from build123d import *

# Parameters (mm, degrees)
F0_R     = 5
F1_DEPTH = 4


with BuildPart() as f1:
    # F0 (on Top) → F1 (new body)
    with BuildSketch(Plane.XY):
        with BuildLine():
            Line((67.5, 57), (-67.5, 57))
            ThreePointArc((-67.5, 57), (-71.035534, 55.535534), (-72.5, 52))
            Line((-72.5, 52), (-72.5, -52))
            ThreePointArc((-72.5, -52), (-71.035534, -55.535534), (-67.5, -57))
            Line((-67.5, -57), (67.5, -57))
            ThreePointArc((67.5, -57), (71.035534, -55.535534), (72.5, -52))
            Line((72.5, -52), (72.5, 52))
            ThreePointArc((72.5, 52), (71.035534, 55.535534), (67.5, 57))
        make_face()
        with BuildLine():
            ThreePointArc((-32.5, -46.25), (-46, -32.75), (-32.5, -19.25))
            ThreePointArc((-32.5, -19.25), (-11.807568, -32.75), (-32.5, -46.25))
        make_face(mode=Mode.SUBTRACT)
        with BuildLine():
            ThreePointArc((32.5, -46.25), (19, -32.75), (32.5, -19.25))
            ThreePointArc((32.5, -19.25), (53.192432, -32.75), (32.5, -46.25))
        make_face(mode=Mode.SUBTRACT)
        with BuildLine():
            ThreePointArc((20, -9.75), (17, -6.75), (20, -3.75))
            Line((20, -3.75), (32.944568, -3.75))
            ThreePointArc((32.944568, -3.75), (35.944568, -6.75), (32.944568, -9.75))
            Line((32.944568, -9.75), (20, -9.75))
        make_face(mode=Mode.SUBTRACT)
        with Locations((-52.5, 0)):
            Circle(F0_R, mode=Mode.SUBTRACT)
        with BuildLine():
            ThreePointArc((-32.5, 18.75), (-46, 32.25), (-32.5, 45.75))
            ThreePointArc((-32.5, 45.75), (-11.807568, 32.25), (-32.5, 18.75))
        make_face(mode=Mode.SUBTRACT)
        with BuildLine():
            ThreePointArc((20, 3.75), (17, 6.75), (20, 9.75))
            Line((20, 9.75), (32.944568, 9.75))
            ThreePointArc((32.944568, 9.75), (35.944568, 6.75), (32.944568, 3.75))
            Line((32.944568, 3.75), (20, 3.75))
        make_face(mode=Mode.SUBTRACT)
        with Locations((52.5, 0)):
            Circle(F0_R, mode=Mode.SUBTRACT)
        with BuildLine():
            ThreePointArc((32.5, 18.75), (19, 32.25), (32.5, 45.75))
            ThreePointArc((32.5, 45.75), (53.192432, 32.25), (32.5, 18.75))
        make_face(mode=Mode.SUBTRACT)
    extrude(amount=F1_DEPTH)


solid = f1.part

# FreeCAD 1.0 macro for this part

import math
import FreeCAD as App
import Part
import Sketcher

doc = App.newDocument("Part")
params = doc.addObject("Spreadsheet::Sheet", "Params")
for row, (alias, value) in enumerate([
    ("sketch1_diameter", "10 mm"),
    ("sketch1_radius", "3 mm"),
    ("sketch1_radius2", "13.5 mm"),
    ("sketch1_width", "135 mm"),
    ("sketch1_height", "104 mm"),
    ("pad1_length", "4 mm"),
], start=1):
    params.set(f"A{row}", alias)
    params.set(f"B{row}", "=" + value)
    params.setAlias(f"B{row}", alias)

body = doc.addObject("PartDesign::Body", "Body")

# Sketch on XY plane
sketch1 = body.newObject("Sketcher::SketchObject", "Sketch")
sketch1.AttachmentSupport = (doc.getObject("XY_Plane"), [""])
sketch1.MapMode = "FlatFace"
sketch1.addGeometry(Part.LineSegment(App.Vector(67.5, 57, 0), App.Vector(-67.5, 57, 0)), False)
sketch1.addGeometry(Part.ArcOfCircle(Part.Circle(App.Vector(-67.5, 52, 0), App.Vector(0, 0, 1), 5), math.radians(90), math.radians(180)), False)
sketch1.addGeometry(Part.LineSegment(App.Vector(-72.5, 52, 0), App.Vector(-72.5, -52, 0)), False)
sketch1.addGeometry(Part.ArcOfCircle(Part.Circle(App.Vector(-67.5, -52, 0), App.Vector(0, 0, 1), 5), math.radians(180), math.radians(270)), False)
sketch1.addGeometry(Part.LineSegment(App.Vector(-67.5, -57, 0), App.Vector(67.5, -57, 0)), False)
sketch1.addGeometry(Part.ArcOfCircle(Part.Circle(App.Vector(67.5, -52, 0), App.Vector(0, 0, 1), 5), math.radians(-90), math.radians(0)), False)
sketch1.addGeometry(Part.LineSegment(App.Vector(72.5, -52, 0), App.Vector(72.5, 52, 0)), False)
sketch1.addGeometry(Part.ArcOfCircle(Part.Circle(App.Vector(67.5, 52, 0), App.Vector(0, 0, 1), 5), math.radians(0), math.radians(90)), False)
sketch1.addGeometry(Part.ArcOfCircle(Part.Circle(App.Vector(-26.6, -32.8, 0), App.Vector(0, 0, 1), 14.7), math.radians(-114), math.radians(114)), False)
sketch1.addGeometry(Part.ArcOfCircle(Part.Circle(App.Vector(-32.5, -32.8, 0), App.Vector(0, 0, 1), 13.5), math.radians(90), math.radians(270)), False)
sketch1.addGeometry(Part.ArcOfCircle(Part.Circle(App.Vector(38.4, -32.8, 0), App.Vector(0, 0, 1), 14.7), math.radians(-114), math.radians(114)), False)
sketch1.addGeometry(Part.ArcOfCircle(Part.Circle(App.Vector(32.5, -32.8, 0), App.Vector(0, 0, 1), 13.5), math.radians(90), math.radians(270)), False)
sketch1.addGeometry(Part.LineSegment(App.Vector(32.9, -9.8, 0), App.Vector(20, -9.8, 0)), False)
sketch1.addGeometry(Part.ArcOfCircle(Part.Circle(App.Vector(20, -6.8, 0), App.Vector(0, 0, 1), 3), math.radians(90), math.radians(270)), False)
sketch1.addGeometry(Part.LineSegment(App.Vector(20, -3.8, 0), App.Vector(32.9, -3.8, 0)), False)
sketch1.addGeometry(Part.ArcOfCircle(Part.Circle(App.Vector(32.9, -6.8, 0), App.Vector(0, 0, 1), 3), math.radians(-90), math.radians(90)), False)
sketch1.addGeometry(Part.Circle(App.Vector(-52.5, 0, 0), App.Vector(0, 0, 1), 5), False)
sketch1.addGeometry(Part.ArcOfCircle(Part.Circle(App.Vector(-26.6, 32.2, 0), App.Vector(0, 0, 1), 14.7), math.radians(-114), math.radians(114)), False)
sketch1.addGeometry(Part.ArcOfCircle(Part.Circle(App.Vector(-32.5, 32.2, 0), App.Vector(0, 0, 1), 13.5), math.radians(90), math.radians(270)), False)
sketch1.addGeometry(Part.LineSegment(App.Vector(32.9, 3.8, 0), App.Vector(20, 3.8, 0)), False)
sketch1.addGeometry(Part.ArcOfCircle(Part.Circle(App.Vector(20, 6.8, 0), App.Vector(0, 0, 1), 3), math.radians(90), math.radians(270)), False)
sketch1.addGeometry(Part.LineSegment(App.Vector(20, 9.8, 0), App.Vector(32.9, 9.8, 0)), False)
sketch1.addGeometry(Part.ArcOfCircle(Part.Circle(App.Vector(32.9, 6.8, 0), App.Vector(0, 0, 1), 3), math.radians(-90), math.radians(90)), False)
sketch1.addGeometry(Part.Circle(App.Vector(52.5, 0, 0), App.Vector(0, 0, 1), 5), False)
sketch1.addGeometry(Part.ArcOfCircle(Part.Circle(App.Vector(38.4, 32.2, 0), App.Vector(0, 0, 1), 14.7), math.radians(-114), math.radians(114)), False)
sketch1.addGeometry(Part.ArcOfCircle(Part.Circle(App.Vector(32.5, 32.2, 0), App.Vector(0, 0, 1), 13.5), math.radians(90), math.radians(270)), False)
sketch1.addConstraint(Sketcher.Constraint("Tangent", 0, 2, 1, 1))
sketch1.addConstraint(Sketcher.Constraint("Tangent", 1, 2, 2, 1))
sketch1.addConstraint(Sketcher.Constraint("Tangent", 2, 2, 3, 1))
sketch1.addConstraint(Sketcher.Constraint("Tangent", 3, 2, 4, 1))
sketch1.addConstraint(Sketcher.Constraint("Tangent", 4, 2, 5, 1))
sketch1.addConstraint(Sketcher.Constraint("Tangent", 5, 2, 6, 1))
sketch1.addConstraint(Sketcher.Constraint("Tangent", 6, 2, 7, 1))
sketch1.addConstraint(Sketcher.Constraint("Tangent", 7, 2, 0, 1))
sketch1.addConstraint(Sketcher.Constraint("Coincident", 8, 1, 9, 2))
sketch1.addConstraint(Sketcher.Constraint("Coincident", 9, 1, 8, 2))
sketch1.addConstraint(Sketcher.Constraint("Coincident", 10, 1, 11, 2))
sketch1.addConstraint(Sketcher.Constraint("Coincident", 11, 1, 10, 2))
sketch1.addConstraint(Sketcher.Constraint("Tangent", 12, 2, 13, 2))
sketch1.addConstraint(Sketcher.Constraint("Tangent", 13, 1, 14, 1))
sketch1.addConstraint(Sketcher.Constraint("Tangent", 14, 2, 15, 2))
sketch1.addConstraint(Sketcher.Constraint("Tangent", 15, 1, 12, 1))
sketch1.addConstraint(Sketcher.Constraint("Coincident", 17, 1, 18, 2))
sketch1.addConstraint(Sketcher.Constraint("Coincident", 18, 1, 17, 2))
sketch1.addConstraint(Sketcher.Constraint("Tangent", 19, 2, 20, 2))
sketch1.addConstraint(Sketcher.Constraint("Tangent", 20, 1, 21, 1))
sketch1.addConstraint(Sketcher.Constraint("Tangent", 21, 2, 22, 2))
sketch1.addConstraint(Sketcher.Constraint("Tangent", 22, 1, 19, 1))
sketch1.addConstraint(Sketcher.Constraint("Coincident", 24, 1, 25, 2))
sketch1.addConstraint(Sketcher.Constraint("Coincident", 25, 1, 24, 2))
sketch1.addConstraint(Sketcher.Constraint("Horizontal", 0))
sketch1.addConstraint(Sketcher.Constraint("Vertical", 2))
sketch1.addConstraint(Sketcher.Constraint("Horizontal", 4))
sketch1.addConstraint(Sketcher.Constraint("Vertical", 6))
sketch1.addConstraint(Sketcher.Constraint("Horizontal", 12))
sketch1.addConstraint(Sketcher.Constraint("Horizontal", 14))
sketch1.addConstraint(Sketcher.Constraint("Horizontal", 19))
sketch1.addConstraint(Sketcher.Constraint("Horizontal", 21))
sketch1.addConstraint(Sketcher.Constraint("Equal", 1, 3))
sketch1.addConstraint(Sketcher.Constraint("Equal", 3, 5))
sketch1.addConstraint(Sketcher.Constraint("Equal", 5, 7))
sketch1.addConstraint(Sketcher.Constraint("Equal", 8, 10))
sketch1.addConstraint(Sketcher.Constraint("Equal", 9, 11))
sketch1.addConstraint(Sketcher.Constraint("Equal", 7, 16))
sketch1.addConstraint(Sketcher.Constraint("Equal", 10, 17))
sketch1.addConstraint(Sketcher.Constraint("Equal", 11, 18))
sketch1.addConstraint(Sketcher.Constraint("Equal", 15, 20))
sketch1.addConstraint(Sketcher.Constraint("Equal", 16, 23))
sketch1.addConstraint(Sketcher.Constraint("Equal", 17, 24))
sketch1.addConstraint(Sketcher.Constraint("Equal", 18, 25))
sketch1.addConstraint(Sketcher.Constraint("Symmetric", 1, 3, 5, 3, -1, 1))
sketch1.addConstraint(Sketcher.Constraint("Symmetric", 16, 3, 23, 3, -1, 1))
sketch1.addConstraint(Sketcher.Constraint("Symmetric", 9, 3, 11, 3, -2))
sketch1.addConstraint(Sketcher.Constraint("Symmetric", 18, 3, 25, 3, -2))
sketch1.addConstraint(Sketcher.Constraint("Symmetric", 13, 3, 20, 3, -1))
sketch1.addConstraint(Sketcher.Constraint("PointOnObject", 16, 3, -1))
sketch1.addConstraint(Sketcher.Constraint("Horizontal", 8, 3, 9, 3))
sketch1.addConstraint(Sketcher.Constraint("Horizontal", 9, 3, 10, 3))
sketch1.addConstraint(Sketcher.Constraint("Horizontal", 17, 3, 18, 3))
sketch1.addConstraint(Sketcher.Constraint("Horizontal", 18, 3, 24, 3))
sketch1.addConstraint(Sketcher.Constraint("Vertical", 8, 3, 17, 3))
sketch1.addConstraint(Sketcher.Constraint("Vertical", 9, 3, 18, 3))
sketch1.addConstraint(Sketcher.Constraint("Vertical", 15, 3, 22, 3))
sketch1.addConstraint(Sketcher.Constraint("Vertical", 10, 3, 24, 3))
sketch1.addConstraint(Sketcher.Constraint("Vertical", 18, 3, 8, 1))
sketch1.addConstraint(Sketcher.Constraint("Vertical", 25, 3, 10, 1))
sketch1.addConstraint(Sketcher.Constraint("Diameter", 16, 10.0))
sketch1.addConstraint(Sketcher.Constraint("Radius", 13, 3.0))
sketch1.addConstraint(Sketcher.Constraint("Radius", 9, 13.5))
sketch1.addConstraint(Sketcher.Constraint("DistanceX", 0, 2, 0, 1, 135.0))
sketch1.addConstraint(Sketcher.Constraint("DistanceY", 2, 2, 2, 1, 104.0))
sketch1.addConstraint(Sketcher.Constraint("Radius", 8, 14.75))
sketch1.addConstraint(Sketcher.Constraint("DistanceX", -1, 1, 13, 3, 20.0))
sketch1.addConstraint(Sketcher.Constraint("DistanceX", 3, 3, 9, 3, 35.0))
sketch1.addConstraint(Sketcher.Constraint("DistanceY", 11, 3, 13, 3, 26.0))
sketch1.addConstraint(Sketcher.Constraint("DistanceX", 16, 3, 9, 3, 20.0))
sketch1.addConstraint(Sketcher.Constraint("DistanceY", 13, 3, 17, 3, 39.0))
sketch1.addConstraint(Sketcher.Constraint("DistanceY", 11, 1, 22, 3, 26.0))
sketch1.addConstraint(Sketcher.Constraint("DistanceX", 12, 2, 12, 1, 12.944568))
sketch1.setExpression("Constraints[60]", "Params.sketch1_diameter")
sketch1.setExpression("Constraints[61]", "Params.sketch1_radius")
sketch1.setExpression("Constraints[62]", "Params.sketch1_radius2")
sketch1.setExpression("Constraints[63]", "Params.sketch1_width")
sketch1.setExpression("Constraints[64]", "Params.sketch1_height")
pad1 = body.newObject("PartDesign::Pad", "Pad")
pad1.Profile = sketch1
pad1.setExpression("Length", "Params.pad1_length")

doc.recompute()
